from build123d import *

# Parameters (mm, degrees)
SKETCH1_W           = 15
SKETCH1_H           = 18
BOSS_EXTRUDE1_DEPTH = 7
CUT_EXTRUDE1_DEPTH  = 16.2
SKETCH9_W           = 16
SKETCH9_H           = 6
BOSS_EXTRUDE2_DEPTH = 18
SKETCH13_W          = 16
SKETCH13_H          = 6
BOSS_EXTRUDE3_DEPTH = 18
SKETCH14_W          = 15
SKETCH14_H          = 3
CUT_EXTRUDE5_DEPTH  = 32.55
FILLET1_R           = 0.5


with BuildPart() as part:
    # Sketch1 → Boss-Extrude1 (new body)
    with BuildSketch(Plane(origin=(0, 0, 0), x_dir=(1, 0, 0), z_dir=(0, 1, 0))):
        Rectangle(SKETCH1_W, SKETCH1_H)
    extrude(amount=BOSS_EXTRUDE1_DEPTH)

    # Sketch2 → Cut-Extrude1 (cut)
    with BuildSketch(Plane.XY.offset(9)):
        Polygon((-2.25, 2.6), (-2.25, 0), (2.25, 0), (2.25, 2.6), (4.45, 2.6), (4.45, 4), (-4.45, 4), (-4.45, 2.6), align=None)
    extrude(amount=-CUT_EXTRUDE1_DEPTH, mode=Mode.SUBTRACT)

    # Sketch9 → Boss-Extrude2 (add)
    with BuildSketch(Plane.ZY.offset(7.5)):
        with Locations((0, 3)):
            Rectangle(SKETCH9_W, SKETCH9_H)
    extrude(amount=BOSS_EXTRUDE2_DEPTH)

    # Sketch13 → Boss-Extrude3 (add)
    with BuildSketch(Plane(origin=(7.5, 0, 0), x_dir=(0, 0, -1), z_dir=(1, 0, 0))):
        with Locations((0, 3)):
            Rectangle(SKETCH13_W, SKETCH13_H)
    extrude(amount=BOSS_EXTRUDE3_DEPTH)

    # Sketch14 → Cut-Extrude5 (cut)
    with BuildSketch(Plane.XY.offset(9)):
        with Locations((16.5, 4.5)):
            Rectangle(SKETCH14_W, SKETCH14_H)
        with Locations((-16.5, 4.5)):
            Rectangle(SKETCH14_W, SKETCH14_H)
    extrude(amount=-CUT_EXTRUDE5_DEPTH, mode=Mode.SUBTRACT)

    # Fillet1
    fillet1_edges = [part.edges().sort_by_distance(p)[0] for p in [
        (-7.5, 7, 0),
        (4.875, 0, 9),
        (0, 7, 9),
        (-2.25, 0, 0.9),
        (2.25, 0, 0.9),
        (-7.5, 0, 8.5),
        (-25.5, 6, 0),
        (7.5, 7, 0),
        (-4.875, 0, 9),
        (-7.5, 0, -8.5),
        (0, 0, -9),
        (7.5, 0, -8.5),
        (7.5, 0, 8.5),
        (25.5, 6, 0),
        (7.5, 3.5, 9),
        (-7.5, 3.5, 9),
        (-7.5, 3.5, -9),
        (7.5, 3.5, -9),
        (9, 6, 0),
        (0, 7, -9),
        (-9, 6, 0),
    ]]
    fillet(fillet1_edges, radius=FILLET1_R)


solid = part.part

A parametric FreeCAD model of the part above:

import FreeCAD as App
import Part
import Sketcher
from FreeCAD import Vector


def edges_at(feature, points):
    """Names of the edges that pass closest to the given points."""
    edges = feature.Shape.Edges
    near = lambda p: min(range(len(edges)), key=lambda i: edges[i].distToShape(Part.Vertex(*p))[0])
    return sorted({f"Edge{near(p) + 1}" for p in points})

doc = App.newDocument("Part")
body = doc.addObject("PartDesign::Body", "Body")

# Sketch on XZ plane
sketch1 = body.newObject("Sketcher::SketchObject", "Sketch")
sketch1.AttachmentSupport = (doc.getObject("XZ_Plane"), [""])
sketch1.MapMode = "FlatFace"
sketch1.addGeometry([
    Part.LineSegment(Vector(-8, -9, 0), Vector(-8, 9, 0)),
    Part.LineSegment(Vector(-8, 9, 0), Vector(8, 9, 0)),
    Part.LineSegment(Vector(8, 9, 0), Vector(8, -9, 0)),
    Part.LineSegment(Vector(8, -9, 0), Vector(-8, -9, 0)),
], False)
sketch1.addConstraint([
    Sketcher.Constraint("Coincident", 0, 2, 1, 1),
    Sketcher.Constraint("Coincident", 1, 2, 2, 1),
    Sketcher.Constraint("Coincident", 2, 2, 3, 1),
    Sketcher.Constraint("Coincident", 3, 2, 0, 1),
    Sketcher.Constraint("Vertical", 0),
    Sketcher.Constraint("Horizontal", 1),
    Sketcher.Constraint("Vertical", 2),
    Sketcher.Constraint("Horizontal", 3),
    Sketcher.Constraint("Symmetric", 0, 2, 2, 2, -1, 1),
    Sketcher.Constraint("DistanceX", 1, 1, 1, 2, 15.0),
    Sketcher.Constraint("DistanceY", 0, 1, 0, 2, 18.0),
])
pad1 = body.newObject("PartDesign::Pad", "Pad")
pad1.Profile = sketch1
pad1.Length = 7
pad1.Reversed = True

# Sketch on XY plane
sketch2 = body.newObject("Sketcher::SketchObject", "Sketch001")
sketch2.AttachmentSupport = (doc.getObject("XY_Plane"), [""])
sketch2.MapMode = "FlatFace"
sketch2.AttachmentOffset = App.Placement(Vector(0, 0, 9), App.Rotation())
sketch2.addGeometry([
    Part.LineSegment(Vector(-2.2, 2.6, 0), Vector(-2.2, 0, 0)),  # 0
    Part.LineSegment(Vector(-2.2, 0, 0), Vector(2.2, 0, 0)),  # 1
    Part.LineSegment(Vector(2.2, 0, 0), Vector(2.2, 2.6, 0)),  # 2
    Part.LineSegment(Vector(2.2, 2.6, 0), Vector(4.5, 2.6, 0)),  # 3
    Part.LineSegment(Vector(4.5, 2.6, 0), Vector(4.5, 4, 0)),  # 4
    Part.LineSegment(Vector(4.5, 4, 0), Vector(-4.5, 4, 0)),  # 5
    Part.LineSegment(Vector(-4.5, 4, 0), Vector(-4.5, 2.6, 0)),  # 6
    Part.LineSegment(Vector(-4.5, 2.6, 0), Vector(-2.2, 2.6, 0)),  # 7
], False)
sketch2.addConstraint([
    Sketcher.Constraint("Coincident", 0, 2, 1, 1),
    Sketcher.Constraint("Coincident", 1, 2, 2, 1),
    Sketcher.Constraint("Coincident", 2, 2, 3, 1),
    Sketcher.Constraint("Coincident", 3, 2, 4, 1),
    Sketcher.Constraint("Coincident", 4, 2, 5, 1),
    Sketcher.Constraint("Coincident", 5, 2, 6, 1),
    Sketcher.Constraint("Coincident", 6, 2, 7, 1),
    Sketcher.Constraint("Coincident", 7, 2, 0, 1),
    Sketcher.Constraint("Vertical", 0),
    Sketcher.Constraint("Horizontal", 1),
    Sketcher.Constraint("Vertical", 2),
    Sketcher.Constraint("Horizontal", 3),
    Sketcher.Constraint("Vertical", 4),
    Sketcher.Constraint("Horizontal", 5),
    Sketcher.Constraint("Vertical", 6),
    Sketcher.Constraint("Horizontal", 7),
    Sketcher.Constraint("Symmetric", 0, 2, 1, 2, -1, 1),
    Sketcher.Constraint("Symmetric", 3, 2, 6, 2, -2),
    Sketcher.Constraint("DistanceX", 1, 1, 1, 2, 4.5),
    Sketcher.Constraint("DistanceX", 3, 1, 3, 2, 2.2),
    Sketcher.Constraint("DistanceY", 0, 2, 0, 1, 2.6),
    Sketcher.Constraint("DistanceY", 4, 1, 4, 2, 1.4),
])
pocket1 = body.newObject("PartDesign::Pocket", "Pocket")
pocket1.Profile = sketch2
pocket1.Length = 16.2

# Sketch on YZ plane
sketch3 = body.newObject("Sketcher::SketchObject", "Sketch002")
sketch3.AttachmentSupport = (doc.getObject("YZ_Plane"), [""])
sketch3.MapMode = "FlatFace"
sketch3.AttachmentOffset = App.Placement(Vector(0, 0, -7.5), App.Rotation())
sketch3.addGeometry([
    Part.LineSegment(Vector(6, -8, 0), Vector(0, -8, 0)),
    Part.LineSegment(Vector(0, -8, 0), Vector(0, 8, 0)),
    Part.LineSegment(Vector(0, 8, 0), Vector(6, 8, 0)),
    Part.LineSegment(Vector(6, 8, 0), Vector(6, -8, 0)),
], False)
sketch3.addConstraint([
    Sketcher.Constraint("Coincident", 0, 2, 1, 1),
    Sketcher.Constraint("Coincident", 1, 2, 2, 1),
    Sketcher.Constraint("Coincident", 2, 2, 3, 1),
    Sketcher.Constraint("Coincident", 3, 2, 0, 1),
    Sketcher.Constraint("Horizontal", 0),
    Sketcher.Constraint("Vertical", 1),
    Sketcher.Constraint("Horizontal", 2),
    Sketcher.Constraint("Vertical", 3),
    Sketcher.Constraint("Symmetric", 0, 2, 1, 2, -1, 1),
    Sketcher.Constraint("DistanceX", 0, 2, 0, 1, 6.0),
    Sketcher.Constraint("DistanceY", 1, 1, 1, 2, 16.0),
])
pad2 = body.newObject("PartDesign::Pad", "Pad001")
pad2.Profile = sketch3
pad2.Length = 18
pad2.Reversed = True

# Sketch on YZ plane
sketch4 = body.newObject("Sketcher::SketchObject", "Sketch003")
sketch4.AttachmentSupport = (doc.getObject("YZ_Plane"), [""])
sketch4.MapMode = "FlatFace"
sketch4.AttachmentOffset = App.Placement(Vector(0, 0, 7.5), App.Rotation())
sketch4.addGeometry([
    Part.LineSegment(Vector(6, 8, 0), Vector(0, 8, 0)),
    Part.LineSegment(Vector(0, 8, 0), Vector(0, -8, 0)),
    Part.LineSegment(Vector(0, -8, 0), Vector(6, -8, 0)),
    Part.LineSegment(Vector(6, -8, 0), Vector(6, 8, 0)),
], False)
sketch4.addConstraint([
    Sketcher.Constraint("Coincident", 0, 2, 1, 1),
    Sketcher.Constraint("Coincident", 1, 2, 2, 1),
    Sketcher.Constraint("Coincident", 2, 2, 3, 1),
    Sketcher.Constraint("Coincident", 3, 2, 0, 1),
    Sketcher.Constraint("Horizontal", 0),
    Sketcher.Constraint("Vertical", 1),
    Sketcher.Constraint("Horizontal", 2),
    Sketcher.Constraint("Vertical", 3),
    Sketcher.Constraint("Symmetric", 0, 2, 1, 2, -1, 1),
    Sketcher.Constraint("DistanceX", 0, 2, 0, 1, 6.0),
    Sketcher.Constraint("DistanceY", 1, 2, 1, 1, 16.0),
])
pad3 = body.newObject("PartDesign::Pad", "Pad002")
pad3.Profile = sketch4
pad3.Length = 18

# Sketch on XY plane
sketch5 = body.newObject("Sketcher::SketchObject", "Sketch004")
sketch5.AttachmentSupport = (doc.getObject("XY_Plane"), [""])
sketch5.MapMode = "FlatFace"
sketch5.AttachmentOffset = App.Placement(Vector(0, 0, 9), App.Rotation())
sketch5.addGeometry([
    Part.LineSegment(Vector(9, 6, 0), Vector(9, 3, 0)),  # 0
    Part.LineSegment(Vector(9, 3, 0), Vector(24, 3, 0)),  # 1
    Part.LineSegment(Vector(24, 3, 0), Vector(24, 6, 0)),  # 2
    Part.LineSegment(Vector(24, 6, 0), Vector(9, 6, 0)),  # 3
    Part.LineSegment(Vector(-24, 6, 0), Vector(-24, 3, 0)),  # 4
    Part.LineSegment(Vector(-24, 3, 0), Vector(-9, 3, 0)),  # 5
    Part.LineSegment(Vector(-9, 3, 0), Vector(-9, 6, 0)),  # 6
    Part.LineSegment(Vector(-9, 6, 0), Vector(-24, 6, 0)),  # 7
], False)
sketch5.addConstraint([
    Sketcher.Constraint("Coincident", 0, 2, 1, 1),
    Sketcher.Constraint("Coincident", 1, 2, 2, 1),
    Sketcher.Constraint("Coincident", 2, 2, 3, 1),
    Sketcher.Constraint("Coincident", 3, 2, 0, 1),
    Sketcher.Constraint("Coincident", 4, 2, 5, 1),
    Sketcher.Constraint("Coincident", 5, 2, 6, 1),
    Sketcher.Constraint("Coincident", 6, 2, 7, 1),
    Sketcher.Constraint("Coincident", 7, 2, 4, 1),
    Sketcher.Constraint("Vertical", 0),
    Sketcher.Constraint("Horizontal", 1),
    Sketcher.Constraint("Vertical", 2),
    Sketcher.Constraint("Horizontal", 3),
    Sketcher.Constraint("Vertical", 4),
    Sketcher.Constraint("Horizontal", 5),
    Sketcher.Constraint("Vertical", 6),
    Sketcher.Constraint("Horizontal", 7),
    Sketcher.Constraint("Symmetric", 1, 2, 4, 2, -2),
    Sketcher.Constraint("Symmetric", 3, 2, 6, 2, -2),
    Sketcher.Constraint("DistanceX", 1, 1, 1, 2, 15.0),
    Sketcher.Constraint("DistanceY", 0, 2, 0, 1, 3.0),
    Sketcher.Constraint("DistanceX", -1, 1, 0, 2, 9.0),
    Sketcher.Constraint("DistanceY", -1, 1, 0, 2, 3.0),
])
pocket2 = body.newObject("PartDesign::Pocket", "Pocket001")
pocket2.Profile = sketch5
pocket2.Length = 32.55
doc.recompute()

fillet = body.newObject("PartDesign::Fillet", "Fillet")
fillet.Base = (pocket2, edges_at(pocket2, [
    (-7.5, 7, 0),
    (4.875, 0, 9),
    (0, 7, 9),
    (-2.25, 0, 0.9),
    (2.25, 0, 0.9),
    (-7.5, 0, 8.5),
    (-25.5, 6, 0),
    (7.5, 7, 0),
    (-4.875, 0, 9),
    (-7.5, 0, -8.5),
    (0, 0, -9),
    (7.5, 0, -8.5),
    (7.5, 0, 8.5),
    (25.5, 6, 0),
    (7.5, 3.5, 9),
    (-7.5, 3.5, 9),
    (-7.5, 3.5, -9),
    (7.5, 3.5, -9),
    (9, 6, 0),
    (0, 7, -9),
    (-9, 6, 0),
]))
fillet.Radius = 0.5

doc.recompute()
